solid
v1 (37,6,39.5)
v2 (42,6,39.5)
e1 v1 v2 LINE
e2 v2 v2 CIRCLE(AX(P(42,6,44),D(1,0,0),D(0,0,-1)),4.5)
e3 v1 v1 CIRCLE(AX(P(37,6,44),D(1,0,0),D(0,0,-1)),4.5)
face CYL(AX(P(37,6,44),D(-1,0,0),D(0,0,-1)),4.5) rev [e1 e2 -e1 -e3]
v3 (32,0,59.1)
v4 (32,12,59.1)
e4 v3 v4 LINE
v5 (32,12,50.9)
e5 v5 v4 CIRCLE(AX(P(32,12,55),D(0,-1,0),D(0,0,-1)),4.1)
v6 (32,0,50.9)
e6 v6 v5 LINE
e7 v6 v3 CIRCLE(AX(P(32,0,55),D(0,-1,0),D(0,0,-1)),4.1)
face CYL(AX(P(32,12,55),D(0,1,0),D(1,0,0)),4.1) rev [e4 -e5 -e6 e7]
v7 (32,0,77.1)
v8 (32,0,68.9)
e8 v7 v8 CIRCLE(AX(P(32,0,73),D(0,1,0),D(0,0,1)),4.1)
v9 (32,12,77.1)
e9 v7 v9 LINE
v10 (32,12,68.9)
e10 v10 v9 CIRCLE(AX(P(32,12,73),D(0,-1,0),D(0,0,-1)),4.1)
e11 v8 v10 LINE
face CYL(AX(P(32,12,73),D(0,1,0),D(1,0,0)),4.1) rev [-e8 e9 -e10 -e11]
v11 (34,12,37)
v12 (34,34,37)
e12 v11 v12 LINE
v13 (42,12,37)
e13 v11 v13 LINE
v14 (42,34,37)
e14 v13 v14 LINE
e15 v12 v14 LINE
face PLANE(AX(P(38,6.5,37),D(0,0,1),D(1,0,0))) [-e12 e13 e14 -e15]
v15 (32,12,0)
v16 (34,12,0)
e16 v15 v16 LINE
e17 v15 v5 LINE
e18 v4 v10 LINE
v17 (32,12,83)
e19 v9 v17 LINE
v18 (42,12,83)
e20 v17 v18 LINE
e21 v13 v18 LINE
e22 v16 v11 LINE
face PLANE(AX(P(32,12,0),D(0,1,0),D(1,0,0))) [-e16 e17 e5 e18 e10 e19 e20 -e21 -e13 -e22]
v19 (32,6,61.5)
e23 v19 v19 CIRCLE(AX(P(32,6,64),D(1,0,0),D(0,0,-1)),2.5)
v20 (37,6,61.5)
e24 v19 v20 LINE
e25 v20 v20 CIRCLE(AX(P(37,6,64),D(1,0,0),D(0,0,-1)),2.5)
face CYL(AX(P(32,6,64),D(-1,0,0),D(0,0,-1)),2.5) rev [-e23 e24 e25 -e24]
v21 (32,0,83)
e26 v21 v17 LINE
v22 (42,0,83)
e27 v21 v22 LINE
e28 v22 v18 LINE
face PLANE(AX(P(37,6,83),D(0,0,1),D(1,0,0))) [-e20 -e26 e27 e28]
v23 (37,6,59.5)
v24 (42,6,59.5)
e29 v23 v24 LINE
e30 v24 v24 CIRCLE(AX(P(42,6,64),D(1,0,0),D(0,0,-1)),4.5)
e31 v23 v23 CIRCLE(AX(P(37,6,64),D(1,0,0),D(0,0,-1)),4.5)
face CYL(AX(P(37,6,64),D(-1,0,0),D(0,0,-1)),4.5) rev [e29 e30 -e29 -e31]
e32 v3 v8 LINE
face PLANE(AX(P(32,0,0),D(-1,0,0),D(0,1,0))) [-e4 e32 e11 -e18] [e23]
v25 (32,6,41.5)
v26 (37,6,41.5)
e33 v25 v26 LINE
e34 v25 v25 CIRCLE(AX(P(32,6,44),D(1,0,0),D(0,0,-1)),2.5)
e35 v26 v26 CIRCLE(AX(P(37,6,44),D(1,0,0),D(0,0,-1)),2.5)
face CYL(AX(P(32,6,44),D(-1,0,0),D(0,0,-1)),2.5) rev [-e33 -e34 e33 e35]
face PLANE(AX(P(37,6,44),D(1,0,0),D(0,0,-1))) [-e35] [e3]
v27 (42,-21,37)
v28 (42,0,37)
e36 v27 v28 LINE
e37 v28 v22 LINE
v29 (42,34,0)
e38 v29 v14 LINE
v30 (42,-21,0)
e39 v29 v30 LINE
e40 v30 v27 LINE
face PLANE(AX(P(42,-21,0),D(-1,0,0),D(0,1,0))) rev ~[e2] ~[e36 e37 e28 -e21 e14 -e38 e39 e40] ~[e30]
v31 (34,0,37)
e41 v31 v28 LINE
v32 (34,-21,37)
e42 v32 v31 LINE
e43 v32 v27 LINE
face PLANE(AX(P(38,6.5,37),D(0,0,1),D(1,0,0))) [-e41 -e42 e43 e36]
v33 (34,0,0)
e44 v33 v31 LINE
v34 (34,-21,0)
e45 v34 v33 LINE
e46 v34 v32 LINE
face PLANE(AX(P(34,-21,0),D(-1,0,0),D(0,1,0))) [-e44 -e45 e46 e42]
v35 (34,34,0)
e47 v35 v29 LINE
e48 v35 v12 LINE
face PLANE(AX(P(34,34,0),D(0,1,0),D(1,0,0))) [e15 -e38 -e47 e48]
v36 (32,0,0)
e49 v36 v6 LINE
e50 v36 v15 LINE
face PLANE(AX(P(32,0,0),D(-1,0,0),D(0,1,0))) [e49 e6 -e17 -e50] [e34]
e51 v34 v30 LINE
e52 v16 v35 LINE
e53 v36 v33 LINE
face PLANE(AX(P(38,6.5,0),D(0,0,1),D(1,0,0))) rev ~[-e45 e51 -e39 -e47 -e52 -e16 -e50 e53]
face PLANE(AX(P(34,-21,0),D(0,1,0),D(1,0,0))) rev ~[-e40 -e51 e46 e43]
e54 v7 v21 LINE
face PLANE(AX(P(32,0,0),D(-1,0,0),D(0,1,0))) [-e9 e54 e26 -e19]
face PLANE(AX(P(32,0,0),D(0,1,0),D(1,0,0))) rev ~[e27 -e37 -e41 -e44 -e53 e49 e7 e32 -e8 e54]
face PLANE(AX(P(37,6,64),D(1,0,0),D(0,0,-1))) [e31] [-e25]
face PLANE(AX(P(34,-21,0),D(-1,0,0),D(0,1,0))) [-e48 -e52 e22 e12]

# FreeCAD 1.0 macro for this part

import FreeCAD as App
import Part
import Sketcher
from FreeCAD import Vector
Q = App.Units.Quantity

doc = App.newDocument("Part")
body = doc.addObject("PartDesign::Body", "Body")

sketch1 = body.newObject("Sketcher::SketchObject", "Sketch")
sketch1.AttachmentSupport = (doc.getObject("XY_Plane"), [""])
sketch1.MapMode = "FlatFace"
sketch1.addGeometry(Part.LineSegment(Vector(34, 34, 0), Vector(34, -21, 0)), False)
sketch1.addGeometry(Part.LineSegment(Vector(34, -21, 0), Vector(42, -21, 0)), False)
sketch1.addGeometry(Part.LineSegment(Vector(42, -21, 0), Vector(42, 34, 0)), False)
sketch1.addGeometry(Part.LineSegment(Vector(42, 34, 0), Vector(34, 34, 0)), False)
sketch1.addConstraint(Sketcher.Constraint("Coincident", 0, 2, 1, 1))
sketch1.addConstraint(Sketcher.Constraint("Coincident", 1, 2, 2, 1))
sketch1.addConstraint(Sketcher.Constraint("Coincident", 2, 2, 3, 1))
sketch1.addConstraint(Sketcher.Constraint("Coincident", 3, 2, 0, 1))
sketch1.addConstraint(Sketcher.Constraint("Vertical", 0))
sketch1.addConstraint(Sketcher.Constraint("Horizontal", 1))
sketch1.addConstraint(Sketcher.Constraint("Vertical", 2))
sketch1.addConstraint(Sketcher.Constraint("Horizontal", 3))
sketch1.addConstraint(Sketcher.Constraint("DistanceX", 1, 1, 1, 2, Q("8 mm")))
sketch1.addConstraint(Sketcher.Constraint("DistanceY", 0, 2, 0, 1, Q("55 mm")))
sketch1.addConstraint(Sketcher.Constraint("DistanceX", -1, 1, 0, 2, Q("34 mm")))
sketch1.addConstraint(Sketcher.Constraint("DistanceY", 0, 2, -1, 1, Q("21 mm")))
pad1 = body.newObject("PartDesign::Pad", "Pad")
pad1.Profile = sketch1
pad1.Length = 37
body2 = doc.addObject("PartDesign::Body", "Body001")

sketch2 = body2.newObject("Sketcher::SketchObject", "Sketch001")
sketch2.AttachmentSupport = (doc.getObject("XZ_Plane001"), [""])
sketch2.MapMode = "FlatFace"
sketch2.AttachmentOffset = App.Placement(Vector(0, 0, -12), App.Rotation())
sketch2.addGeometry(Part.Circle(Vector(32, 73, 0), Vector(0, 0, 1), 4.1), False)
sketch2.addConstraint(Sketcher.Constraint("Diameter", 0, Q("8.2 mm")))
sketch2.addConstraint(Sketcher.Constraint("DistanceX", -1, 1, 0, 3, Q("32 mm")))
sketch2.addConstraint(Sketcher.Constraint("DistanceY", -1, 1, 0, 3, Q("73 mm")))
pad2 = body2.newObject("PartDesign::Pad", "Pad001")
pad2.Profile = sketch2
pad2.Length = 12
body3 = doc.addObject("PartDesign::Body", "Body002")

sketch3 = body3.newObject("Sketcher::SketchObject", "Sketch002")
sketch3.AttachmentSupport = (doc.getObject("XZ_Plane002"), [""])
sketch3.MapMode = "FlatFace"
sketch3.AttachmentOffset = App.Placement(Vector(0, 0, -12), App.Rotation())
sketch3.addGeometry(Part.Circle(Vector(32, 55, 0), Vector(0, 0, 1), 4.1), False)
sketch3.addConstraint(Sketcher.Constraint("Diameter", 0, Q("8.2 mm")))
sketch3.addConstraint(Sketcher.Constraint("DistanceX", -1, 1, 0, 3, Q("32 mm")))
sketch3.addConstraint(Sketcher.Constraint("DistanceY", -1, 1, 0, 3, Q("55 mm")))
pad3 = body3.newObject("PartDesign::Pad", "Pad002")
pad3.Profile = sketch3
pad3.Length = 12
body4 = doc.addObject("PartDesign::Body", "Body003")

sketch4 = body4.newObject("Sketcher::SketchObject", "Sketch003")
sketch4.AttachmentSupport = (doc.getObject("YZ_Plane003"), [""])
sketch4.MapMode = "FlatFace"
sketch4.AttachmentOffset = App.Placement(Vector(0, 0, 37), App.Rotation())
sketch4.addGeometry(Part.Circle(Vector(5, 55, 0), Vector(0, 0, 1), 4.5), False)
sketch4.addConstraint(Sketcher.Constraint("Diameter", 0, Q("9 mm")))
sketch4.addConstraint(Sketcher.Constraint("DistanceX", -1, 1, 0, 3, Q("5 mm")))
sketch4.addConstraint(Sketcher.Constraint("DistanceY", -1, 1, 0, 3, Q("55 mm")))
pad4 = body4.newObject("PartDesign::Pad", "Pad003")
pad4.Profile = sketch4
pad4.Length = 5
body5 = doc.addObject("PartDesign::Body", "Body004")

sketch5 = body5.newObject("Sketcher::SketchObject", "Sketch004")
sketch5.AttachmentSupport = (doc.getObject("YZ_Plane004"), [""])
sketch5.MapMode = "FlatFace"
sketch5.AttachmentOffset = App.Placement(Vector(0, 0, 32), App.Rotation())
sketch5.addGeometry(Part.Circle(Vector(5, 55, 0), Vector(0, 0, 1), 2.5), False)
sketch5.addConstraint(Sketcher.Constraint("Diameter", 0, Q("5 mm")))
sketch5.addConstraint(Sketcher.Constraint("DistanceX", -1, 1, 0, 3, Q("5 mm")))
sketch5.addConstraint(Sketcher.Constraint("DistanceY", -1, 1, 0, 3, Q("55 mm")))
pad5 = body5.newObject("PartDesign::Pad", "Pad004")
pad5.Profile = sketch5
pad5.Length = 5
doc.recompute()

boolean = body5.newObject("PartDesign::Boolean", "Boolean")
boolean.Type = "Fuse"
boolean.addObjects([body4])
body6 = doc.addObject("PartDesign::Body", "Body005")
doc.recompute()

body5.Placement = App.Placement(Vector(0, 1, 9), App.Rotation(Vector(0, 0, 1), 0))
boolean2 = body6.newObject("PartDesign::Boolean", "Boolean001")
boolean2.Type = "Fuse"
boolean2.addObjects([body5])
body7 = doc.addObject("PartDesign::Body", "Body006")

sketch6 = body7.newObject("Sketcher::SketchObject", "Sketch005")
sketch6.AttachmentSupport = (doc.getObject("YZ_Plane006"), [""])
sketch6.MapMode = "FlatFace"
sketch6.AttachmentOffset = App.Placement(Vector(0, 0, 37), App.Rotation())
sketch6.addGeometry(Part.Circle(Vector(5, 55, 0), Vector(0, 0, 1), 4.5), False)
sketch6.addConstraint(Sketcher.Constraint("Diameter", 0, Q("9 mm")))
sketch6.addConstraint(Sketcher.Constraint("DistanceX", -1, 1, 0, 3, Q("5 mm")))
sketch6.addConstraint(Sketcher.Constraint("DistanceY", -1, 1, 0, 3, Q("55 mm")))
pad6 = body7.newObject("PartDesign::Pad", "Pad005")
pad6.Profile = sketch6
pad6.Length = 5
body8 = doc.addObject("PartDesign::Body", "Body007")

sketch7 = body8.newObject("Sketcher::SketchObject", "Sketch006")
sketch7.AttachmentSupport = (doc.getObject("YZ_Plane007"), [""])
sketch7.MapMode = "FlatFace"
sketch7.AttachmentOffset = App.Placement(Vector(0, 0, 32), App.Rotation())
sketch7.addGeometry(Part.Circle(Vector(5, 55, 0), Vector(0, 0, 1), 2.5), False)
sketch7.addConstraint(Sketcher.Constraint("Diameter", 0, Q("5 mm")))
sketch7.addConstraint(Sketcher.Constraint("DistanceX", -1, 1, 0, 3, Q("5 mm")))
sketch7.addConstraint(Sketcher.Constraint("DistanceY", -1, 1, 0, 3, Q("55 mm")))
pad7 = body8.newObject("PartDesign::Pad", "Pad006")
pad7.Profile = sketch7
pad7.Length = 5
doc.recompute()

boolean3 = body8.newObject("PartDesign::Boolean", "Boolean002")
boolean3.Type = "Fuse"
boolean3.addObjects([body7])
body9 = doc.addObject("PartDesign::Body", "Body008")
body9.AllowCompound = True
doc.recompute()

body8.Placement = App.Placement(Vector(0, 1, -11), App.Rotation(Vector(0, 0, 1), 0))
boolean4 = body9.newObject("PartDesign::Boolean", "Boolean003")
boolean4.Type = "Fuse"
boolean4.addObjects([body8])
doc.recompute()

boolean5 = body9.newObject("PartDesign::Boolean", "Boolean004")
boolean5.Type = "Fuse"
boolean5.addObjects([body6])
body10 = doc.addObject("PartDesign::Body", "Body009")

sketch8 = body10.newObject("Sketcher::SketchObject", "Sketch007")
sketch8.AttachmentSupport = (doc.getObject("XY_Plane009"), [""])
sketch8.MapMode = "FlatFace"
sketch8.addGeometry(Part.LineSegment(Vector(32, 12, 0), Vector(32, 0, 0)), False)
sketch8.addGeometry(Part.LineSegment(Vector(32, 0, 0), Vector(42, 0, 0)), False)
sketch8.addGeometry(Part.LineSegment(Vector(42, 0, 0), Vector(42, 12, 0)), False)
sketch8.addGeometry(Part.LineSegment(Vector(42, 12, 0), Vector(32, 12, 0)), False)
sketch8.addConstraint(Sketcher.Constraint("Coincident", 0, 2, 1, 1))
sketch8.addConstraint(Sketcher.Constraint("Coincident", 1, 2, 2, 1))
sketch8.addConstraint(Sketcher.Constraint("Coincident", 2, 2, 3, 1))
sketch8.addConstraint(Sketcher.Constraint("Coincident", 3, 2, 0, 1))
sketch8.addConstraint(Sketcher.Constraint("Vertical", 0))
sketch8.addConstraint(Sketcher.Constraint("Horizontal", 1))
sketch8.addConstraint(Sketcher.Constraint("Vertical", 2))
sketch8.addConstraint(Sketcher.Constraint("Horizontal", 3))
sketch8.addConstraint(Sketcher.Constraint("PointOnObject", 0, 2, -1))
sketch8.addConstraint(Sketcher.Constraint("DistanceX", 1, 1, 1, 2, Q("10 mm")))
sketch8.addConstraint(Sketcher.Constraint("DistanceY", 0, 2, 0, 1, Q("12 mm")))
sketch8.addConstraint(Sketcher.Constraint("DistanceX", -1, 1, 0, 2, Q("32 mm")))
pad8 = body10.newObject("PartDesign::Pad", "Pad007")
pad8.Profile = sketch8
pad8.Length = 83
doc.recompute()

boolean6 = body10.newObject("PartDesign::Boolean", "Boolean005")
boolean6.Type = "Cut"
boolean6.addObjects([body9])
doc.recompute()

boolean7 = body10.newObject("PartDesign::Boolean", "Boolean006")
boolean7.Type = "Cut"
boolean7.addObjects([body3])
doc.recompute()

boolean8 = body10.newObject("PartDesign::Boolean", "Boolean007")
boolean8.Type = "Cut"
boolean8.addObjects([body2])
doc.recompute()

boolean9 = body10.newObject("PartDesign::Boolean", "Boolean008")
boolean9.Type = "Fuse"
boolean9.addObjects([body])

doc.recompute()
